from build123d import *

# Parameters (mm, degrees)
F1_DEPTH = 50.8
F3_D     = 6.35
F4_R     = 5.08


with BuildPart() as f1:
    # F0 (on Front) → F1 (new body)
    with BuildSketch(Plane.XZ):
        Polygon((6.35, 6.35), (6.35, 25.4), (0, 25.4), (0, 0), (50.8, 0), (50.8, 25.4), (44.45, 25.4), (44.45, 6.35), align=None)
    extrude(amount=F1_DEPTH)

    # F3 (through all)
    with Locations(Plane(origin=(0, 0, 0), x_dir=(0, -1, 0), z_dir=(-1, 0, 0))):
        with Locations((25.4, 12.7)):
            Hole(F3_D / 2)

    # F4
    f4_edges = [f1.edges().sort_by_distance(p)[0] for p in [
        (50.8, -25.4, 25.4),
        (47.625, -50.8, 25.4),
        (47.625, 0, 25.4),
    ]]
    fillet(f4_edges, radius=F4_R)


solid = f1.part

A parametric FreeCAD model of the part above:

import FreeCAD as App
import Part
import Sketcher
Q = App.Units.Quantity


def edges_at(feature, points):
    """Names of the edges that pass closest to the given points."""
    edges = feature.Shape.Edges
    near = lambda p: min(range(len(edges)), key=lambda i: edges[i].distToShape(Part.Vertex(*p))[0])
    return sorted({f"Edge{near(p) + 1}" for p in points})


def add_polygon(sketch, points):
    """Adds a closed chain of lines whose ends are joined by coincident constraints."""
    first, n = sketch.GeometryCount, len(points)
    for a, b in zip(points, points[1:] + points[:1]):
        sketch.addGeometry(Part.LineSegment(App.Vector(*a, 0), App.Vector(*b, 0)), False)
    for i in range(n):
        sketch.addConstraint(Sketcher.Constraint("Coincident", first + i, 2, first + (i + 1) % n, 1))

doc = App.newDocument("Part")
body = doc.addObject("PartDesign::Body", "Body")

sketch1 = body.newObject("Sketcher::SketchObject", "Sketch")
sketch1.AttachmentSupport = (doc.getObject("XZ_Plane"), [""])
sketch1.MapMode = "FlatFace"
add_polygon(sketch1, [(6, 6), (6, 25), (0, 25), (0, 0), (51, 0), (51, 25), (44, 25), (44, 6)])
sketch1.addConstraint([
    Sketcher.Constraint("Vertical", 0),
    Sketcher.Constraint("Horizontal", 1),
    Sketcher.Constraint("Vertical", 2),
    Sketcher.Constraint("Horizontal", 3),
    Sketcher.Constraint("Vertical", 4),
    Sketcher.Constraint("Horizontal", 5),
    Sketcher.Constraint("Vertical", 6),
    Sketcher.Constraint("Horizontal", 7),
    Sketcher.Constraint("Coincident", 2, 2, -1, 1),
    Sketcher.Constraint("Horizontal", 1, 2, 4, 2),
    Sketcher.Constraint("Equal", 1, 5),
    Sketcher.Constraint("DistanceX", 3, 1, 3, 2, Q("2 in")),
    Sketcher.Constraint("DistanceY", 2, 2, 2, 1, Q("1 in")),
    Sketcher.Constraint("DistanceX", 7, 2, 7, 1, Q("1.5 in")),
    Sketcher.Constraint("DistanceY", 0, 1, 0, 2, Q("0.75 in")),
])
pad1 = body.newObject("PartDesign::Pad", "Pad")
pad1.Profile = sketch1
pad1.Length = Q("2 in")

sketch2 = body.newObject("Sketcher::SketchObject", "Sketch001")
sketch2.AttachmentSupport = (doc.getObject("YZ_Plane"), [""])
sketch2.MapMode = "FlatFace"
sketch2.addGeometry(Part.Circle(App.Vector(-25.4, 12.7, 0), App.Vector(0, 0, 1), 3.2), False)
sketch2.addConstraint([
    Sketcher.Constraint("Diameter", 0, Q("0.25 in")),
    Sketcher.Constraint("DistanceX", 0, 3, -1, 1, Q("1 in")),
    Sketcher.Constraint("DistanceY", -1, 1, 0, 3, Q("0.5 in")),
])
doc.recompute()
hole = body.newObject("PartDesign::Hole", "Hole")
hole.Profile = sketch2
hole.ThreadType = "None"
hole.Diameter = Q("0.25 in")
hole.DepthType = "ThroughAll"
hole.Reversed = True
doc.recompute()

fillet = body.newObject("PartDesign::Fillet", "Fillet")
fillet.Base = (hole, edges_at(hole, [(50.8, -25.4, 25.4), (47.625, -50.8, 25.4), (47.625, 0, 25.4)]))
fillet.Radius = Q("0.2 in")

doc.recompute()
